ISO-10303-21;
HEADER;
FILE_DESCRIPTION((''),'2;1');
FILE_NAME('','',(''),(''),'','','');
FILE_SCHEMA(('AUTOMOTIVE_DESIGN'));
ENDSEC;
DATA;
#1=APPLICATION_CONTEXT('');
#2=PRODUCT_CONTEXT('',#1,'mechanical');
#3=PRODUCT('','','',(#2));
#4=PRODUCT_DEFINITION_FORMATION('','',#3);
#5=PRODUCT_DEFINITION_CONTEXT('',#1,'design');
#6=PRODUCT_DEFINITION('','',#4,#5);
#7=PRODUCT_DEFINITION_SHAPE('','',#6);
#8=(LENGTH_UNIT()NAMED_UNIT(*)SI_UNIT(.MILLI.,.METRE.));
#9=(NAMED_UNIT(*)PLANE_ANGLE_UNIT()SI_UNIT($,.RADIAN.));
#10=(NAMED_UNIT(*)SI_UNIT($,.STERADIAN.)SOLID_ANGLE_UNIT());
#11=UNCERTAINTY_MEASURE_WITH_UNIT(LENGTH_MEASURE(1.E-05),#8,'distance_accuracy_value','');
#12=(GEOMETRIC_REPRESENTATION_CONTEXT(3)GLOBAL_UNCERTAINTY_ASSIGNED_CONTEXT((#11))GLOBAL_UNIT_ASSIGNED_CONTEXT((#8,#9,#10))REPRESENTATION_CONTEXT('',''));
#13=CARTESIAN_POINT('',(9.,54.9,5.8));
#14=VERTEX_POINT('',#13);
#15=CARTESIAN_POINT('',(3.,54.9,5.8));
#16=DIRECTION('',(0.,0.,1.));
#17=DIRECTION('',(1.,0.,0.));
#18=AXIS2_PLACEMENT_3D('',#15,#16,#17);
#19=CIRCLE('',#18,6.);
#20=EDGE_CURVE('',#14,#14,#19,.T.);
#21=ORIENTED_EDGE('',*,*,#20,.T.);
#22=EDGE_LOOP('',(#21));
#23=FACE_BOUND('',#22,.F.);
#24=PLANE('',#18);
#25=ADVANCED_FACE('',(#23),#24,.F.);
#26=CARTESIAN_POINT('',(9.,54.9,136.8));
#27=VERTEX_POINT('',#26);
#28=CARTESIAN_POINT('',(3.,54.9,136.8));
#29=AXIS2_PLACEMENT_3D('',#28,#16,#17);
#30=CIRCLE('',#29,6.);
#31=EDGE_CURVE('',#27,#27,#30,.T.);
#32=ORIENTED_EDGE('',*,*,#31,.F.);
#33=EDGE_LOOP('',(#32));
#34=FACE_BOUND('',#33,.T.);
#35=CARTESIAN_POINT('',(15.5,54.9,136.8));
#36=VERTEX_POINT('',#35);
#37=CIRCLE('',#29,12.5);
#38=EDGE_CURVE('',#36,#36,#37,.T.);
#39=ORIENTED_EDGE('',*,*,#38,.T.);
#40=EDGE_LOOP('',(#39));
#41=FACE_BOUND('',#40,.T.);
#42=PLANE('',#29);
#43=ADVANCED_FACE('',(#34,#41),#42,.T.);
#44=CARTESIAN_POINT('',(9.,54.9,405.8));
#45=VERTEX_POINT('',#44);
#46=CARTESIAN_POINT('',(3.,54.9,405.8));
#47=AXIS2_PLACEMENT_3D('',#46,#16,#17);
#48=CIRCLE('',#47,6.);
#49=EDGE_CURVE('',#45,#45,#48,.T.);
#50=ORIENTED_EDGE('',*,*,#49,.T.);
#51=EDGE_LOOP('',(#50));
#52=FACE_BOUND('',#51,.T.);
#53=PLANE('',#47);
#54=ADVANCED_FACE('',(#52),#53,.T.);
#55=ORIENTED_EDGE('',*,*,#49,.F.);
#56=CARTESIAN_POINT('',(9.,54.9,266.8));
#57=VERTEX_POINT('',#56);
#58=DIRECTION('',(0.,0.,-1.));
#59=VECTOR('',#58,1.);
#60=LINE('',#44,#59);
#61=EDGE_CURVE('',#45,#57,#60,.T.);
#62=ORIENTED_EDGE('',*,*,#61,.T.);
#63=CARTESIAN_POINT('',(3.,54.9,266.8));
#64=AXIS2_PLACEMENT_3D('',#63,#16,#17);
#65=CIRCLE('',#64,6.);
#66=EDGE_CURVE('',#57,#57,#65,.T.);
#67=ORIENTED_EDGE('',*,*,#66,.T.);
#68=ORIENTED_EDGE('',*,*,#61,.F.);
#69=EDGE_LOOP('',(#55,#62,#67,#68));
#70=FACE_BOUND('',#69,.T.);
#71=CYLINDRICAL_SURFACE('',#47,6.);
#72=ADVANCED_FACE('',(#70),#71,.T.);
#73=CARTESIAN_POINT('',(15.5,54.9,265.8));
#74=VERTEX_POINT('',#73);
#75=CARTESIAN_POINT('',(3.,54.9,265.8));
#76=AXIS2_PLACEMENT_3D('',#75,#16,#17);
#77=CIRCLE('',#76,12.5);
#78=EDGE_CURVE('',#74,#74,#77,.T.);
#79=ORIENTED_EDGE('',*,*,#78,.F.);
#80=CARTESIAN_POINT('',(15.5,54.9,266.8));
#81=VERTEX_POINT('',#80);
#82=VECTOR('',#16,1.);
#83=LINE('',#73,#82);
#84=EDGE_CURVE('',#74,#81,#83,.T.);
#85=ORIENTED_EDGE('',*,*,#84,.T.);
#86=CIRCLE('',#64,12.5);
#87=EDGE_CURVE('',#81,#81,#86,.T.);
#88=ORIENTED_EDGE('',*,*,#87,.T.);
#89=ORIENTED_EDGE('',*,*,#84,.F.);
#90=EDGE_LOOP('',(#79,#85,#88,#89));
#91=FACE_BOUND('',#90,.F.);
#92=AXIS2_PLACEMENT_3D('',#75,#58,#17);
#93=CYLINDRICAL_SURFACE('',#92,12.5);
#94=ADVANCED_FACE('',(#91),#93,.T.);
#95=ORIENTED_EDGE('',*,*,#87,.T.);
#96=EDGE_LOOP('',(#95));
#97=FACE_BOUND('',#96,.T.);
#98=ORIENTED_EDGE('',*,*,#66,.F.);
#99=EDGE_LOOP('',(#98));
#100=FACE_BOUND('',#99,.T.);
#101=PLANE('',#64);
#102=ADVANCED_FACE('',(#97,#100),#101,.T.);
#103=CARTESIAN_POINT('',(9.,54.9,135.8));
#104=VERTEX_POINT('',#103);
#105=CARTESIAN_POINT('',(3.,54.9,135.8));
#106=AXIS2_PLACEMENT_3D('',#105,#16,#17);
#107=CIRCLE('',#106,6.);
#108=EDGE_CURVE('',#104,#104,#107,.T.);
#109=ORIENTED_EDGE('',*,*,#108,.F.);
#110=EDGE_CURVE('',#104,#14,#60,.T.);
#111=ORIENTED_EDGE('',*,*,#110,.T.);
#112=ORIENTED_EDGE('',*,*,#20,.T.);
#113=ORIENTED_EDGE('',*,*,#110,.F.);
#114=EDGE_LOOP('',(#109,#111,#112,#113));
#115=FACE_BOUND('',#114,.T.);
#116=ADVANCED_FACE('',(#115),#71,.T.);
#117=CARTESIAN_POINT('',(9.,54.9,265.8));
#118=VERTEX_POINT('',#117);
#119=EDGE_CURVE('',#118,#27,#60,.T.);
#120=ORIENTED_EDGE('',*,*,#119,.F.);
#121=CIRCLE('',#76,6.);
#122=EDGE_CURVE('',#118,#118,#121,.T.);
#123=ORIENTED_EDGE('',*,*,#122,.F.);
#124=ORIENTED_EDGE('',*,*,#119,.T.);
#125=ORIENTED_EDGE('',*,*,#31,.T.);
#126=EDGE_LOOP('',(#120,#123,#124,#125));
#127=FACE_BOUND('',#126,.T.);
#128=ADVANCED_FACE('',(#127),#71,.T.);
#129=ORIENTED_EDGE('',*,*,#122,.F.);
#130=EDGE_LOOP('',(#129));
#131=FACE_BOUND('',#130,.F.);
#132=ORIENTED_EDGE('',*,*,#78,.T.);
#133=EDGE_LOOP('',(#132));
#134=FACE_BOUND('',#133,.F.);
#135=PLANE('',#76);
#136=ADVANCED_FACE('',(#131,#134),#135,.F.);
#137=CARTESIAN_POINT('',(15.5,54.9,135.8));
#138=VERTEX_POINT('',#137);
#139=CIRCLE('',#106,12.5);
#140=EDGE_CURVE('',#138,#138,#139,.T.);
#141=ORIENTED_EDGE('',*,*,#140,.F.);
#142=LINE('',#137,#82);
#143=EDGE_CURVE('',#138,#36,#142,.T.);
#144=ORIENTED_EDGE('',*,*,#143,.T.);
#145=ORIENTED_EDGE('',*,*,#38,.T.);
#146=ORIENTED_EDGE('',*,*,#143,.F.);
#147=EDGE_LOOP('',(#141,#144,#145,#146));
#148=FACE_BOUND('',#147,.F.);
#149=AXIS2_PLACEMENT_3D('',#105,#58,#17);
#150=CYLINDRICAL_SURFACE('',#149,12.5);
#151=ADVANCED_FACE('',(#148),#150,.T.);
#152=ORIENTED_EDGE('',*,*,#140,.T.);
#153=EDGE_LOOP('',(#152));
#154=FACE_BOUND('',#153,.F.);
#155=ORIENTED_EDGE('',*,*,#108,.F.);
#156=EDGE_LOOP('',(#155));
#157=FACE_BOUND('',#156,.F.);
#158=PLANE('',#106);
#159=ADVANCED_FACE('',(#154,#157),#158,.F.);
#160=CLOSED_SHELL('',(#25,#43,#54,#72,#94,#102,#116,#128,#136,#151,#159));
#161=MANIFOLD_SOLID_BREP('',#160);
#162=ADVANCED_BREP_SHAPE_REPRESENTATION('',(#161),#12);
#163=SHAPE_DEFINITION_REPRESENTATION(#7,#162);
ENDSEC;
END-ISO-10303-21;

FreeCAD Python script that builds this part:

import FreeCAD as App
import Part
import Sketcher

doc = App.newDocument("Part")
body = doc.addObject("PartDesign::Body", "Body")

# Sketch on XY plane
sketch1 = body.newObject("Sketcher::SketchObject", "Sketch")
sketch1.AttachmentSupport = (doc.getObject("XY_Plane"), [""])
sketch1.MapMode = "FlatFace"
sketch1.addGeometry(Part.Circle(App.Vector(0, 0, 0), App.Vector(0, 0, 1), 6), False)
sketch1.addConstraint([
    Sketcher.Constraint("Coincident", 0, 3, -1, 1),
    Sketcher.Constraint("Diameter", 0, 12.0),
])
pad1 = body.newObject("PartDesign::Pad", "Pad")
pad1.Profile = sketch1
pad1.Length = 400
pad1.Reversed = True

# Sketch on XY plane
sketch2 = body.newObject("Sketcher::SketchObject", "Sketch001")
sketch2.AttachmentSupport = (doc.getObject("XY_Plane"), [""])
sketch2.MapMode = "FlatFace"
sketch2.AttachmentOffset = App.Placement(App.Vector(0, 0, -270), App.Rotation())
sketch2.addGeometry(Part.Circle(App.Vector(0, 0, 0), App.Vector(0, 0, 1), 12), False)
sketch2.addConstraint([
    Sketcher.Constraint("Coincident", 0, 3, -1, 1),
    Sketcher.Constraint("Diameter", 0, 25.0),
])
pad2 = body.newObject("PartDesign::Pad", "Pad001")
pad2.Profile = sketch2
pad2.Length = 1

# Sketch on XY plane
sketch3 = body.newObject("Sketcher::SketchObject", "Sketch002")
sketch3.AttachmentSupport = (doc.getObject("XY_Plane"), [""])
sketch3.MapMode = "FlatFace"
sketch3.AttachmentOffset = App.Placement(App.Vector(0, 0, -140), App.Rotation())
sketch3.addGeometry(Part.Circle(App.Vector(0, 0, 0), App.Vector(0, 0, 1), 12), False)
sketch3.addConstraint([
    Sketcher.Constraint("Coincident", 0, 3, -1, 1),
    Sketcher.Constraint("Diameter", 0, 25.0),
])
pad3 = body.newObject("PartDesign::Pad", "Pad002")
pad3.Profile = sketch3
pad3.Length = 1
body2 = doc.addObject("PartDesign::Body", "Body001")
doc.recompute()

body.Placement = App.Placement(App.Vector(3, 54.9, 405.8), App.Rotation(App.Vector(0, 0, 1), 0))
boolean = body2.newObject("PartDesign::Boolean", "Boolean")
boolean.Type = "Fuse"
boolean.addObjects([body])

doc.recompute()
